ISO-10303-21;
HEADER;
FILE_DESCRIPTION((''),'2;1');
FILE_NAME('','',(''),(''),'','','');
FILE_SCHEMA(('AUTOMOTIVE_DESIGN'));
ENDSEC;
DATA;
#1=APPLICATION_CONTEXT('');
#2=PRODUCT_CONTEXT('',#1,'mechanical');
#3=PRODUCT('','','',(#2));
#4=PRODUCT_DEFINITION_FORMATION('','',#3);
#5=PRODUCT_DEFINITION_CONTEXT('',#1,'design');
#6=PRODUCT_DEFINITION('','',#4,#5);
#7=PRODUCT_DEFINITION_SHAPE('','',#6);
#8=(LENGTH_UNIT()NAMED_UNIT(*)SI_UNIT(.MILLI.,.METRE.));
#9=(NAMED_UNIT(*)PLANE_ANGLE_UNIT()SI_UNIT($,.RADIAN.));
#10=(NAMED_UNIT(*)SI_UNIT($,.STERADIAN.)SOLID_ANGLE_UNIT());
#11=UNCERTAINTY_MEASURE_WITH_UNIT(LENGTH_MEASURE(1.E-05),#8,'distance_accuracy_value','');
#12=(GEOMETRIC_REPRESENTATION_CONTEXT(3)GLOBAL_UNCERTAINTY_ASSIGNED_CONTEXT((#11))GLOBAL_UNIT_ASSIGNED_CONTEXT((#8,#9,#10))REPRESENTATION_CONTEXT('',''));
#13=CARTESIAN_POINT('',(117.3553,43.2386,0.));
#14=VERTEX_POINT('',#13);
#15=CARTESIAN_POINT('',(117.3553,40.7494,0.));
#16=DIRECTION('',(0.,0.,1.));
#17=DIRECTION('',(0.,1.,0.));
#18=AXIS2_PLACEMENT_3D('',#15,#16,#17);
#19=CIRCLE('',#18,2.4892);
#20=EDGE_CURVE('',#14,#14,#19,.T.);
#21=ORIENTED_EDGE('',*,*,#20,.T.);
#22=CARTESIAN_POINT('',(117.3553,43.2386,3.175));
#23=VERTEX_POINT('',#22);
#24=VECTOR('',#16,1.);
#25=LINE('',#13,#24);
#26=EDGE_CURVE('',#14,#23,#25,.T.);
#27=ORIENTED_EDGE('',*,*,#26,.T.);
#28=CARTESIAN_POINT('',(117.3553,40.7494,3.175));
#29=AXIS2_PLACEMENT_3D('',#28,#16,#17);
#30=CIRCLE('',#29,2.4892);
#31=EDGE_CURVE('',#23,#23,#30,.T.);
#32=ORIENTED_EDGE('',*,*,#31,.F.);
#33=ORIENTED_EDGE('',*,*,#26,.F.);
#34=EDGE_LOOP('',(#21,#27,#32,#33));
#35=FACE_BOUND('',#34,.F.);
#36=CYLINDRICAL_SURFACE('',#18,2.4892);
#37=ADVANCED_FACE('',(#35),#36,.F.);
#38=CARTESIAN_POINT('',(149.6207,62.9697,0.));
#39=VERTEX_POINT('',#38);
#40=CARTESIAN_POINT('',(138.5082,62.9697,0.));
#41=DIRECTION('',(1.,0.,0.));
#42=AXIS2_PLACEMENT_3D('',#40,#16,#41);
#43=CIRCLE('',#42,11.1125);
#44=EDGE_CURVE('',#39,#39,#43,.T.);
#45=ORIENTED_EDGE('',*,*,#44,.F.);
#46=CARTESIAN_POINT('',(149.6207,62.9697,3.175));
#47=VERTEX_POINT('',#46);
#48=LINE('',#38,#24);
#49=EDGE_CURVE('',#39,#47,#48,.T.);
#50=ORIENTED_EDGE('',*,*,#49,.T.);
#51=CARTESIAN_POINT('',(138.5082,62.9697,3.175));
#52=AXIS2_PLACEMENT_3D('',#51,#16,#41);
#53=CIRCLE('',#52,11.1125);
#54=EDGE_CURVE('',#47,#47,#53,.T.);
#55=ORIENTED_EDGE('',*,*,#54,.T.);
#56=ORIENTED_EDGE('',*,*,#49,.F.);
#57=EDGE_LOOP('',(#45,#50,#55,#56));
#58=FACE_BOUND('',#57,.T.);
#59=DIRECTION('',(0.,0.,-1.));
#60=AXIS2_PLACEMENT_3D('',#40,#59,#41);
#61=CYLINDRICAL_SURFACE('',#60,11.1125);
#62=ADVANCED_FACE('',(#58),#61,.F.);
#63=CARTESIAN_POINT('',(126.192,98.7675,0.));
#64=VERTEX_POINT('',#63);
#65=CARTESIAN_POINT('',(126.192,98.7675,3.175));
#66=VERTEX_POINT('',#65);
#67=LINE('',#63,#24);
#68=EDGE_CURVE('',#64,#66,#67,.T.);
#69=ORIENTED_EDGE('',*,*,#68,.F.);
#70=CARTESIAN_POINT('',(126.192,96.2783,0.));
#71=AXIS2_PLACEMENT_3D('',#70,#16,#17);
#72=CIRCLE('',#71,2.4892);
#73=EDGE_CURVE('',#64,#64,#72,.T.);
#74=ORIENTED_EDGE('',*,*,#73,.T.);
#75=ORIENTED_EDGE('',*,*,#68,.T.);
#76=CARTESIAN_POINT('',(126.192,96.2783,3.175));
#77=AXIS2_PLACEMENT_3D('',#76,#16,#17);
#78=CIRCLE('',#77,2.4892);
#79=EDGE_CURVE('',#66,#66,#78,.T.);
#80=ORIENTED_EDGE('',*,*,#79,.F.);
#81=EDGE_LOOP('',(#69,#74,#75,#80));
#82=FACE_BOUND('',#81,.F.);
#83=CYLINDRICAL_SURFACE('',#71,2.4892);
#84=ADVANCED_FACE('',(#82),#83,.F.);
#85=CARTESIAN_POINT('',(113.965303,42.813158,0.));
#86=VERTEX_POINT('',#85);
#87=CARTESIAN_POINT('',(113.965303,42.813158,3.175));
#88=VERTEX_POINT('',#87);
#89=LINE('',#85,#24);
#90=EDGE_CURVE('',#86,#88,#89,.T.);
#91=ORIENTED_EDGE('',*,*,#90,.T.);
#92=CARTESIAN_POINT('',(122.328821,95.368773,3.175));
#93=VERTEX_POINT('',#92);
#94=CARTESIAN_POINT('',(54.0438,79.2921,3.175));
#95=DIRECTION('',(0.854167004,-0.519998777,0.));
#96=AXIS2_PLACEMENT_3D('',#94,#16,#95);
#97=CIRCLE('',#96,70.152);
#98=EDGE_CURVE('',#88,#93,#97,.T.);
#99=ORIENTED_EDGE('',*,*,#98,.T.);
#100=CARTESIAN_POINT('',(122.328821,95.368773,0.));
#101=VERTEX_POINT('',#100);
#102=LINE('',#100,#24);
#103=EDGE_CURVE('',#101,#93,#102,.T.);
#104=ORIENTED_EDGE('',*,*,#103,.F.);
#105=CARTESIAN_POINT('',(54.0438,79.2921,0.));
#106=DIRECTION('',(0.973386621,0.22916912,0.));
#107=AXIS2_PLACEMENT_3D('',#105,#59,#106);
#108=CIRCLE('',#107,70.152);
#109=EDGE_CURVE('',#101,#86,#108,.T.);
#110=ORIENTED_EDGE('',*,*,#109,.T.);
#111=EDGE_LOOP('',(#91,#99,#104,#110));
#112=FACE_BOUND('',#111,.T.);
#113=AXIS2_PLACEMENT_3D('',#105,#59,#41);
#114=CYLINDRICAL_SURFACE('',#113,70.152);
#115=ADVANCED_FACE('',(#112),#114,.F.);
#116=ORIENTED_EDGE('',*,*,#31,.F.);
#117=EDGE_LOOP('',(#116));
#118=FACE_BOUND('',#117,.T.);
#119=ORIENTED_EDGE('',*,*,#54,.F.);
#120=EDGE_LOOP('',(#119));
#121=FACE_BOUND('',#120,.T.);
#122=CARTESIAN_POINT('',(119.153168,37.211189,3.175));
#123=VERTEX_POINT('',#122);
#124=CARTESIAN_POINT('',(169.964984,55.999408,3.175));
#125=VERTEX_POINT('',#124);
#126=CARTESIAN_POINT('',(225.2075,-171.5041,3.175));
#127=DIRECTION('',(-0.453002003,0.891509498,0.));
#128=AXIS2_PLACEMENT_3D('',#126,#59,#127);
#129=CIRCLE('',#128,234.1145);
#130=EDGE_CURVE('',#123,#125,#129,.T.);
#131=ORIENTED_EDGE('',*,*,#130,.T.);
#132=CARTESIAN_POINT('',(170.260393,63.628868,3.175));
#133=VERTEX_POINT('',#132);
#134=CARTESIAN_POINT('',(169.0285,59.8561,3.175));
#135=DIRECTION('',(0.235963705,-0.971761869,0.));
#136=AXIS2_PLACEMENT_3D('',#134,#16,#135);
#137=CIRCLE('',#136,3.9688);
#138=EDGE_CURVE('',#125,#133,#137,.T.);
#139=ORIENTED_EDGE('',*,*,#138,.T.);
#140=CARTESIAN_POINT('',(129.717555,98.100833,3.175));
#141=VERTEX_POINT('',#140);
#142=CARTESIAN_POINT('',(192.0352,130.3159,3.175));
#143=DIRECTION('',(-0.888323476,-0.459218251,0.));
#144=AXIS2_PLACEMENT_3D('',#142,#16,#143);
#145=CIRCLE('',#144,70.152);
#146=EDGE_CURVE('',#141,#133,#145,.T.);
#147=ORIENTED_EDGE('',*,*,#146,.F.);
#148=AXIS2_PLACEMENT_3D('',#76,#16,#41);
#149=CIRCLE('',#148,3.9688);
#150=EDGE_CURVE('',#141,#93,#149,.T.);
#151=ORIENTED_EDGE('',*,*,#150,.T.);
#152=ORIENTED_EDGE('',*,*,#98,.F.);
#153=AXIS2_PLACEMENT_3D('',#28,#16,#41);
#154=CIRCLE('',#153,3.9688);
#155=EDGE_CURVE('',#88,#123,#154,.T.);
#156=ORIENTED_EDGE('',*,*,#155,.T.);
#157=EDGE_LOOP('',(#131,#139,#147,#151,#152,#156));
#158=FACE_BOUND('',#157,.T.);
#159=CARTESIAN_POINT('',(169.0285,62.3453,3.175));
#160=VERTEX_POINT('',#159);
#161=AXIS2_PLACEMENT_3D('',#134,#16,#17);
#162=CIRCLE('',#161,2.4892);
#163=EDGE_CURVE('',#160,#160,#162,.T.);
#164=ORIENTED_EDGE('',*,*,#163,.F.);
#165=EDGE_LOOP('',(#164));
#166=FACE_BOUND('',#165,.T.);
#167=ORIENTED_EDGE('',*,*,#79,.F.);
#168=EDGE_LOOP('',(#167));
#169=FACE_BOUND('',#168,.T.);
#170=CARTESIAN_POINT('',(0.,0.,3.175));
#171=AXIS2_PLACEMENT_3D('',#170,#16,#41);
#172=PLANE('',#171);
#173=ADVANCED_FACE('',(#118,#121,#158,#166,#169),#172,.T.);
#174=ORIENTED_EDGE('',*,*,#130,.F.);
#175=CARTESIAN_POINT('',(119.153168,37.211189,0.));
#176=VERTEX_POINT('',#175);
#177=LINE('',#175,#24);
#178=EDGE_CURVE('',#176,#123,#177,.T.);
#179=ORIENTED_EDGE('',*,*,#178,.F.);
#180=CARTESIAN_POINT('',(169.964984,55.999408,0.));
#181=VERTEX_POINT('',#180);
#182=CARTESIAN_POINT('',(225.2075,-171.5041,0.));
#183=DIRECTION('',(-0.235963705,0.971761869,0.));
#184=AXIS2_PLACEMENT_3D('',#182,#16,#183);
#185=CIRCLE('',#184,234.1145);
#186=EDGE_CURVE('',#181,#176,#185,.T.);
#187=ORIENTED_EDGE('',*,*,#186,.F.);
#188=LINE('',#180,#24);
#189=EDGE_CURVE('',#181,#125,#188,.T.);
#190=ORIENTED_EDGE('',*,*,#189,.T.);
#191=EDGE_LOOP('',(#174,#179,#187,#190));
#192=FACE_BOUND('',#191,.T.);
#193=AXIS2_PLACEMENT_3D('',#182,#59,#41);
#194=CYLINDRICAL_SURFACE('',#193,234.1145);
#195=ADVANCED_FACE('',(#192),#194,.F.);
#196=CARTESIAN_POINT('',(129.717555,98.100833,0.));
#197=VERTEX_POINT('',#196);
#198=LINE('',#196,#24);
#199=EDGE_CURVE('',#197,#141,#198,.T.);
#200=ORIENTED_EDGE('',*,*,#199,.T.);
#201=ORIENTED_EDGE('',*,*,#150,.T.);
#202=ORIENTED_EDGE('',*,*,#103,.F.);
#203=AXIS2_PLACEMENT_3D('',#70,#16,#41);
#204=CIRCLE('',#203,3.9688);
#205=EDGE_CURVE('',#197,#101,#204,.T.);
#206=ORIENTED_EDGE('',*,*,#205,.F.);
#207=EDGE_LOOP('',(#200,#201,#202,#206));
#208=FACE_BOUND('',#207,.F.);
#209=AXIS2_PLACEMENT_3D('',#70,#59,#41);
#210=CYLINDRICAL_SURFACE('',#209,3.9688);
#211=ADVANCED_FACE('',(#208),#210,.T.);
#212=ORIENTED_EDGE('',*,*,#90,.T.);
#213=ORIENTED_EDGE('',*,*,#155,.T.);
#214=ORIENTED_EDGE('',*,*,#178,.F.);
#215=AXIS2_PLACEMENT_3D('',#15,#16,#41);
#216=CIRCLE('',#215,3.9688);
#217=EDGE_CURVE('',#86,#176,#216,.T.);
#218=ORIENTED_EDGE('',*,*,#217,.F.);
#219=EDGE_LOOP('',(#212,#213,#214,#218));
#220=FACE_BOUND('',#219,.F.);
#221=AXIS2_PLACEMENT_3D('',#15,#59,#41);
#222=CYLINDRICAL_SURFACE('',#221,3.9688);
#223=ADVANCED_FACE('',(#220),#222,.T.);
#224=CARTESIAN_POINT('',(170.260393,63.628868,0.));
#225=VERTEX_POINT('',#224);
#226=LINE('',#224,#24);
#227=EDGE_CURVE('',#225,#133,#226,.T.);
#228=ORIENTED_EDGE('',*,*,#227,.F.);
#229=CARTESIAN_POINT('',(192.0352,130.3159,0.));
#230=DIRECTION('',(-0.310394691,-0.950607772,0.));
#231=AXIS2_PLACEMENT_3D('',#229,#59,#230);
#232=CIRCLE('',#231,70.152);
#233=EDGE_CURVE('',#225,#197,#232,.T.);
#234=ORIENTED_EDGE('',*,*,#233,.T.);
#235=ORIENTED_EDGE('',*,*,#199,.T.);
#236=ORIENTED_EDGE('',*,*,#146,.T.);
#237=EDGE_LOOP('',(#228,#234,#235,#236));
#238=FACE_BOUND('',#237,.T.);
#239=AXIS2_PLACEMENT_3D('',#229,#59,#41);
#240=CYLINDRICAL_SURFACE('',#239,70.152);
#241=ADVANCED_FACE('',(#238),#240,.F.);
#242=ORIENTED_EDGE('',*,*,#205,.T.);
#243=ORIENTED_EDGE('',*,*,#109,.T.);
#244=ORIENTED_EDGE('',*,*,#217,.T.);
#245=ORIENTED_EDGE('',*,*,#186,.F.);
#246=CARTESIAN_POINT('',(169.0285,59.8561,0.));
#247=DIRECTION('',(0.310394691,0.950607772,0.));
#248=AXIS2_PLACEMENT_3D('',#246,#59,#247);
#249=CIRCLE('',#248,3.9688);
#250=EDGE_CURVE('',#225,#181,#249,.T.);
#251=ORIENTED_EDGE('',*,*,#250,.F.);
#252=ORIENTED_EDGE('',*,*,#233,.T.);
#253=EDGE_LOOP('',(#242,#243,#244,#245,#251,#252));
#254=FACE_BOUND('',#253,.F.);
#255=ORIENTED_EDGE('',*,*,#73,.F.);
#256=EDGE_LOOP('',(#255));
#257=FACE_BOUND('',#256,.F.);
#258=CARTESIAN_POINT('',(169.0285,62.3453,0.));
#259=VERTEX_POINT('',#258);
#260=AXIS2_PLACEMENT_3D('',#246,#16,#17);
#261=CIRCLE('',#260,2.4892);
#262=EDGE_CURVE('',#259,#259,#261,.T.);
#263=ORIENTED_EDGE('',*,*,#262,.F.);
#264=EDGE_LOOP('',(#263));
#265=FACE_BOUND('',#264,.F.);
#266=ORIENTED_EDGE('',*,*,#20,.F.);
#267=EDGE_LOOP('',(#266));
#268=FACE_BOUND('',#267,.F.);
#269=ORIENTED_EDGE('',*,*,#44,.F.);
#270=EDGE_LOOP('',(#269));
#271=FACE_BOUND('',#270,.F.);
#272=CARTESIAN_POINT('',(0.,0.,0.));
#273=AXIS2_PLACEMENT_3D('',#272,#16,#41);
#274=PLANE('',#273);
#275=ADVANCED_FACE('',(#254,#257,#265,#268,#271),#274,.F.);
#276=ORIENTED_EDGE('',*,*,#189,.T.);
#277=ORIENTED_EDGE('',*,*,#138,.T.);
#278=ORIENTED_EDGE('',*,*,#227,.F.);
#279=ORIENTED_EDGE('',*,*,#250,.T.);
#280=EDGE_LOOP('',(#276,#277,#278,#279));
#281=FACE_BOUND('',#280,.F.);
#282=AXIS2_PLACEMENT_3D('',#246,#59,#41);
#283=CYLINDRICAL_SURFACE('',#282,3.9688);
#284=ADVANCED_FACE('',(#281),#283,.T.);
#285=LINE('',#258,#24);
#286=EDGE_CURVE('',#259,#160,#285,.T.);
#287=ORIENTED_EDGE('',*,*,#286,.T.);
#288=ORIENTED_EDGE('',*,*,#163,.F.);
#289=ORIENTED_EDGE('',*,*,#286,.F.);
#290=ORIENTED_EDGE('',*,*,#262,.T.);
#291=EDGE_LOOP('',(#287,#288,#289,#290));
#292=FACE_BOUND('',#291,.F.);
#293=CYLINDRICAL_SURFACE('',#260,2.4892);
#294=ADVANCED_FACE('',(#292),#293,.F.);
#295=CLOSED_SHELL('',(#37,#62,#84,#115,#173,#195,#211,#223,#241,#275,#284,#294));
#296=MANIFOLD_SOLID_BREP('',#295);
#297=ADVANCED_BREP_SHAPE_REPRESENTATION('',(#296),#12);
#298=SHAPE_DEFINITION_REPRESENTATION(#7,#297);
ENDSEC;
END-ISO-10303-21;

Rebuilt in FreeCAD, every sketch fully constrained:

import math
import FreeCAD as App
import Part
import Sketcher

V = App.Vector
Q = App.Units.Quantity

doc = App.newDocument("Part")
body = doc.addObject("PartDesign::Body", "Body")

sketch1 = body.newObject("Sketcher::SketchObject", "Sketch")
sketch1.AttachmentSupport = (doc.getObject("XY_Plane"), [""])
sketch1.MapMode = "FlatFace"
sketch1.addGeometry(Part.ArcOfCircle(Part.Circle(V(126.192, 96.2783, 0), V(0, 0, 1), 3.9688), math.radians(27.336674), math.radians(193.248164)), False)
sketch1.addGeometry(Part.ArcOfCircle(Part.Circle(V(54.0438, 79.2921, 0), V(0, 0, 1), 70.152), math.radians(-31.332169), math.radians(13.248159)), False)
sketch1.addGeometry(Part.ArcOfCircle(Part.Circle(V(117.3553, 40.7494, 0), V(0, 0, 1), 3.9688), math.radians(148.667831), math.radians(296.936453)), False)
sketch1.addGeometry(Part.ArcOfCircle(Part.Circle(V(225.2075, -171.5041, 0), V(0, 0, 1), 234.1145), math.radians(103.648437), math.radians(116.936453)), False)
sketch1.addGeometry(Part.ArcOfCircle(Part.Circle(V(169.0285, 59.8561, 0), V(0, 0, 1), 3.9688), math.radians(-76.351563), math.radians(71.916982)), False)
sketch1.addGeometry(Part.ArcOfCircle(Part.Circle(V(192.0352, 130.3159, 0), V(0, 0, 1), 70.152), math.radians(-152.663326), math.radians(-108.083018)), False)
sketch1.addGeometry(Part.Circle(V(138.5082, 62.9697, 0), V(0, 0, 1), 11.1125), False)
sketch1.addConstraint(Sketcher.Constraint("Coincident", 0, 2, 1, 2))
sketch1.addConstraint(Sketcher.Constraint("Coincident", 1, 1, 2, 1))
sketch1.addConstraint(Sketcher.Constraint("Coincident", 2, 2, 3, 2))
sketch1.addConstraint(Sketcher.Constraint("Coincident", 3, 1, 4, 1))
sketch1.addConstraint(Sketcher.Constraint("Coincident", 4, 2, 5, 2))
sketch1.addConstraint(Sketcher.Constraint("Coincident", 5, 1, 0, 1))
sketch1.addConstraint(Sketcher.Constraint("Diameter", 6, Q("0.875 in")))
sketch1.addConstraint(Sketcher.Constraint("Radius", 0, Q("0.156252 in")))
sketch1.addConstraint(Sketcher.Constraint("Radius", 2, Q("0.156252 in")))
sketch1.addConstraint(Sketcher.Constraint("Radius", 4, Q("0.156252 in")))
sketch1.addConstraint(Sketcher.Constraint("Radius", 1, Q("2.7619 in")))
sketch1.addConstraint(Sketcher.Constraint("Radius", 3, Q("9.2171 in")))
sketch1.addConstraint(Sketcher.Constraint("Radius", 5, Q("2.7619 in")))
sketch1.addConstraint(Sketcher.Constraint("DistanceY", -1, 1, 2, 2, Q("1.465 in")))
sketch1.addConstraint(Sketcher.Constraint("DistanceX", -1, 1, 5, 1, Q("5.107 in")))
sketch1.addConstraint(Sketcher.Constraint("DistanceY", 4, 3, 5, 3, Q("2.774 in")))
sketch1.addConstraint(Sketcher.Constraint("DistanceX", 5, 3, 3, 3, Q("1.306 in")))
sketch1.addConstraint(Sketcher.Constraint("DistanceX", 2, 2, 6, 3, Q("0.762 in")))
sketch1.addConstraint(Sketcher.Constraint("DistanceX", -1, 1, 0, 3, Q("4.9682 in")))
sketch1.addConstraint(Sketcher.Constraint("DistanceX", -1, 1, 1, 3, Q("2.1277 in")))
sketch1.addConstraint(Sketcher.Constraint("DistanceY", -1, 1, 2, 3, Q("1.6043 in")))
sketch1.addConstraint(Sketcher.Constraint("DistanceX", -1, 1, 0, 2, Q("4.8161 in")))
sketch1.addConstraint(Sketcher.Constraint("DistanceY", -1, 1, 3, 1, Q("2.2047 in")))
sketch1.addConstraint(Sketcher.Constraint("DistanceX", 2, 3, 0, 3, Q("0.3479 in")))
sketch1.addConstraint(Sketcher.Constraint("DistanceX", 1, 1, 3, 1, Q("2.2047 in")))
sketch1.addConstraint(Sketcher.Constraint("DistanceX", 4, 3, 4, 2, Q("0.0485 in")))
sketch1.addConstraint(Sketcher.Constraint("DistanceY", -1, 1, 6, 3, 62.9697))
pad1 = body.newObject("PartDesign::Pad", "Pad")
pad1.Profile = sketch1
pad1.Length = Q("0.125 in")

sketch2 = body.newObject("Sketcher::SketchObject", "Sketch001")
sketch2.AttachmentSupport = (doc.getObject("XY_Plane"), [""])
sketch2.MapMode = "FlatFace"
sketch2.addGeometry(Part.Circle(V(79.5941, 61.9064, 0), V(0, 0, 1), 2.4892), False)
sketch2.addGeometry(Part.Circle(V(228.4773, 60.5377, 0), V(0, 0, 1), 2.4892), False)
sketch2.addGeometry(Part.Circle(V(183.9418, 100.4902, 0), V(0, 0, 1), 2.4892), False)
sketch2.addGeometry(Part.Circle(V(215.4629, 109.6423, 0), V(0, 0, 1), 2.4892), False)
sketch2.addGeometry(Part.Circle(V(117.3553, 40.7494, 0), V(0, 0, 1), 2.4892), False)
sketch2.addGeometry(Part.Circle(V(169.0285, 59.8561, 0), V(0, 0, 1), 2.4892), False)
sketch2.addGeometry(Part.Circle(V(126.192, 96.2783, 0), V(0, 0, 1), 2.4892), False)
sketch2.addConstraint(Sketcher.Constraint("Equal", 0, 1))
sketch2.addConstraint(Sketcher.Constraint("Equal", 1, 2))
sketch2.addConstraint(Sketcher.Constraint("Equal", 2, 3))
sketch2.addConstraint(Sketcher.Constraint("Equal", 3, 4))
sketch2.addConstraint(Sketcher.Constraint("Equal", 4, 5))
sketch2.addConstraint(Sketcher.Constraint("Equal", 5, 6))
sketch2.addConstraint(Sketcher.Constraint("Diameter", 0, Q("0.196 in")))
sketch2.addConstraint(Sketcher.Constraint("DistanceX", 2, 3, 3, 3, Q("1.241 in")))
sketch2.addConstraint(Sketcher.Constraint("DistanceY", 4, 3, 2, 3, Q("2.352 in")))
sketch2.addConstraint(Sketcher.Constraint("DistanceX", 5, 3, 3, 3, Q("1.828126 in")))
sketch2.addConstraint(Sketcher.Constraint("DistanceX", -1, 1, 2, 3, Q("7.2418 in")))
sketch2.addConstraint(Sketcher.Constraint("DistanceY", -1, 1, 2, 3, Q("3.9563 in")))
sketch2.addConstraint(Sketcher.Constraint("DistanceX", -1, 1, 6, 3, Q("4.9682 in")))
sketch2.addConstraint(Sketcher.Constraint("DistanceX", 4, 3, 3, 3, Q("3.8625 in")))
sketch2.addConstraint(Sketcher.Constraint("DistanceX", 5, 3, 1, 3, Q("2.3405 in")))
sketch2.addConstraint(Sketcher.Constraint("DistanceX", -1, 1, 0, 3, 79.594))
sketch2.addConstraint(Sketcher.Constraint("DistanceY", -1, 1, 0, 3, 61.9064))
sketch2.addConstraint(Sketcher.Constraint("DistanceY", -1, 1, 1, 3, 60.5377))
sketch2.addConstraint(Sketcher.Constraint("DistanceY", -1, 1, 3, 3, 109.6423))
sketch2.addConstraint(Sketcher.Constraint("DistanceY", -1, 1, 5, 3, 59.856))
sketch2.addConstraint(Sketcher.Constraint("DistanceY", -1, 1, 6, 3, 96.2783))
doc.recompute()
hole = body.newObject("PartDesign::Hole", "Hole")
hole.Profile = sketch2
hole.ThreadType = "None"
hole.Diameter = Q("0.196 in")
hole.DepthType = "ThroughAll"
hole.Reversed = True

doc.recompute()
